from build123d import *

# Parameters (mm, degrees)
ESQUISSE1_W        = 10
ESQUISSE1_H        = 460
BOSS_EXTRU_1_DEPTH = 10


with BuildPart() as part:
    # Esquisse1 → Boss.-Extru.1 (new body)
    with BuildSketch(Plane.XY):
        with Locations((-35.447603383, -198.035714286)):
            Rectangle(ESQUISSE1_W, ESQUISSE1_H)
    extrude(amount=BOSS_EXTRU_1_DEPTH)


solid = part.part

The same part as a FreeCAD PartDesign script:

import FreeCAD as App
import Part
import Sketcher

V = App.Vector
Q = App.Units.Quantity

doc = App.newDocument("Part")
body = doc.addObject("PartDesign::Body", "Body")

# Sketch on XY plane
sketch1 = body.newObject("Sketcher::SketchObject", "Sketch")
sketch1.AttachmentSupport = (doc.getObject("XY_Plane"), [""])
sketch1.MapMode = "FlatFace"
sketch1.addGeometry([
    Part.LineSegment(V(-40, 32, 0), V(-40, -428, 0)),
    Part.LineSegment(V(-40, -428, 0), V(-30, -428, 0)),
    Part.LineSegment(V(-30, -428, 0), V(-30, 32, 0)),
    Part.LineSegment(V(-30, 32, 0), V(-40, 32, 0)),
], False)
sketch1.addConstraint([
    Sketcher.Constraint("Coincident", 0, 2, 1, 1),
    Sketcher.Constraint("Coincident", 1, 2, 2, 1),
    Sketcher.Constraint("Coincident", 2, 2, 3, 1),
    Sketcher.Constraint("Coincident", 3, 2, 0, 1),
    Sketcher.Constraint("Vertical", 0),
    Sketcher.Constraint("Horizontal", 1),
    Sketcher.Constraint("Vertical", 2),
    Sketcher.Constraint("Horizontal", 3),
    Sketcher.Constraint("DistanceX", 1, 1, 1, 2, Q("10 mm")),
    Sketcher.Constraint("DistanceY", 0, 2, 0, 1, Q("460 mm")),
    Sketcher.Constraint("DistanceX", 0, 2, -1, 1, Q("40.447603 mm")),
    Sketcher.Constraint("DistanceY", 0, 2, -1, 1, Q("428.035714 mm")),
])
pad1 = body.newObject("PartDesign::Pad", "Pad")
pad1.Profile = sketch1
pad1.Length = 10

doc.recompute()
